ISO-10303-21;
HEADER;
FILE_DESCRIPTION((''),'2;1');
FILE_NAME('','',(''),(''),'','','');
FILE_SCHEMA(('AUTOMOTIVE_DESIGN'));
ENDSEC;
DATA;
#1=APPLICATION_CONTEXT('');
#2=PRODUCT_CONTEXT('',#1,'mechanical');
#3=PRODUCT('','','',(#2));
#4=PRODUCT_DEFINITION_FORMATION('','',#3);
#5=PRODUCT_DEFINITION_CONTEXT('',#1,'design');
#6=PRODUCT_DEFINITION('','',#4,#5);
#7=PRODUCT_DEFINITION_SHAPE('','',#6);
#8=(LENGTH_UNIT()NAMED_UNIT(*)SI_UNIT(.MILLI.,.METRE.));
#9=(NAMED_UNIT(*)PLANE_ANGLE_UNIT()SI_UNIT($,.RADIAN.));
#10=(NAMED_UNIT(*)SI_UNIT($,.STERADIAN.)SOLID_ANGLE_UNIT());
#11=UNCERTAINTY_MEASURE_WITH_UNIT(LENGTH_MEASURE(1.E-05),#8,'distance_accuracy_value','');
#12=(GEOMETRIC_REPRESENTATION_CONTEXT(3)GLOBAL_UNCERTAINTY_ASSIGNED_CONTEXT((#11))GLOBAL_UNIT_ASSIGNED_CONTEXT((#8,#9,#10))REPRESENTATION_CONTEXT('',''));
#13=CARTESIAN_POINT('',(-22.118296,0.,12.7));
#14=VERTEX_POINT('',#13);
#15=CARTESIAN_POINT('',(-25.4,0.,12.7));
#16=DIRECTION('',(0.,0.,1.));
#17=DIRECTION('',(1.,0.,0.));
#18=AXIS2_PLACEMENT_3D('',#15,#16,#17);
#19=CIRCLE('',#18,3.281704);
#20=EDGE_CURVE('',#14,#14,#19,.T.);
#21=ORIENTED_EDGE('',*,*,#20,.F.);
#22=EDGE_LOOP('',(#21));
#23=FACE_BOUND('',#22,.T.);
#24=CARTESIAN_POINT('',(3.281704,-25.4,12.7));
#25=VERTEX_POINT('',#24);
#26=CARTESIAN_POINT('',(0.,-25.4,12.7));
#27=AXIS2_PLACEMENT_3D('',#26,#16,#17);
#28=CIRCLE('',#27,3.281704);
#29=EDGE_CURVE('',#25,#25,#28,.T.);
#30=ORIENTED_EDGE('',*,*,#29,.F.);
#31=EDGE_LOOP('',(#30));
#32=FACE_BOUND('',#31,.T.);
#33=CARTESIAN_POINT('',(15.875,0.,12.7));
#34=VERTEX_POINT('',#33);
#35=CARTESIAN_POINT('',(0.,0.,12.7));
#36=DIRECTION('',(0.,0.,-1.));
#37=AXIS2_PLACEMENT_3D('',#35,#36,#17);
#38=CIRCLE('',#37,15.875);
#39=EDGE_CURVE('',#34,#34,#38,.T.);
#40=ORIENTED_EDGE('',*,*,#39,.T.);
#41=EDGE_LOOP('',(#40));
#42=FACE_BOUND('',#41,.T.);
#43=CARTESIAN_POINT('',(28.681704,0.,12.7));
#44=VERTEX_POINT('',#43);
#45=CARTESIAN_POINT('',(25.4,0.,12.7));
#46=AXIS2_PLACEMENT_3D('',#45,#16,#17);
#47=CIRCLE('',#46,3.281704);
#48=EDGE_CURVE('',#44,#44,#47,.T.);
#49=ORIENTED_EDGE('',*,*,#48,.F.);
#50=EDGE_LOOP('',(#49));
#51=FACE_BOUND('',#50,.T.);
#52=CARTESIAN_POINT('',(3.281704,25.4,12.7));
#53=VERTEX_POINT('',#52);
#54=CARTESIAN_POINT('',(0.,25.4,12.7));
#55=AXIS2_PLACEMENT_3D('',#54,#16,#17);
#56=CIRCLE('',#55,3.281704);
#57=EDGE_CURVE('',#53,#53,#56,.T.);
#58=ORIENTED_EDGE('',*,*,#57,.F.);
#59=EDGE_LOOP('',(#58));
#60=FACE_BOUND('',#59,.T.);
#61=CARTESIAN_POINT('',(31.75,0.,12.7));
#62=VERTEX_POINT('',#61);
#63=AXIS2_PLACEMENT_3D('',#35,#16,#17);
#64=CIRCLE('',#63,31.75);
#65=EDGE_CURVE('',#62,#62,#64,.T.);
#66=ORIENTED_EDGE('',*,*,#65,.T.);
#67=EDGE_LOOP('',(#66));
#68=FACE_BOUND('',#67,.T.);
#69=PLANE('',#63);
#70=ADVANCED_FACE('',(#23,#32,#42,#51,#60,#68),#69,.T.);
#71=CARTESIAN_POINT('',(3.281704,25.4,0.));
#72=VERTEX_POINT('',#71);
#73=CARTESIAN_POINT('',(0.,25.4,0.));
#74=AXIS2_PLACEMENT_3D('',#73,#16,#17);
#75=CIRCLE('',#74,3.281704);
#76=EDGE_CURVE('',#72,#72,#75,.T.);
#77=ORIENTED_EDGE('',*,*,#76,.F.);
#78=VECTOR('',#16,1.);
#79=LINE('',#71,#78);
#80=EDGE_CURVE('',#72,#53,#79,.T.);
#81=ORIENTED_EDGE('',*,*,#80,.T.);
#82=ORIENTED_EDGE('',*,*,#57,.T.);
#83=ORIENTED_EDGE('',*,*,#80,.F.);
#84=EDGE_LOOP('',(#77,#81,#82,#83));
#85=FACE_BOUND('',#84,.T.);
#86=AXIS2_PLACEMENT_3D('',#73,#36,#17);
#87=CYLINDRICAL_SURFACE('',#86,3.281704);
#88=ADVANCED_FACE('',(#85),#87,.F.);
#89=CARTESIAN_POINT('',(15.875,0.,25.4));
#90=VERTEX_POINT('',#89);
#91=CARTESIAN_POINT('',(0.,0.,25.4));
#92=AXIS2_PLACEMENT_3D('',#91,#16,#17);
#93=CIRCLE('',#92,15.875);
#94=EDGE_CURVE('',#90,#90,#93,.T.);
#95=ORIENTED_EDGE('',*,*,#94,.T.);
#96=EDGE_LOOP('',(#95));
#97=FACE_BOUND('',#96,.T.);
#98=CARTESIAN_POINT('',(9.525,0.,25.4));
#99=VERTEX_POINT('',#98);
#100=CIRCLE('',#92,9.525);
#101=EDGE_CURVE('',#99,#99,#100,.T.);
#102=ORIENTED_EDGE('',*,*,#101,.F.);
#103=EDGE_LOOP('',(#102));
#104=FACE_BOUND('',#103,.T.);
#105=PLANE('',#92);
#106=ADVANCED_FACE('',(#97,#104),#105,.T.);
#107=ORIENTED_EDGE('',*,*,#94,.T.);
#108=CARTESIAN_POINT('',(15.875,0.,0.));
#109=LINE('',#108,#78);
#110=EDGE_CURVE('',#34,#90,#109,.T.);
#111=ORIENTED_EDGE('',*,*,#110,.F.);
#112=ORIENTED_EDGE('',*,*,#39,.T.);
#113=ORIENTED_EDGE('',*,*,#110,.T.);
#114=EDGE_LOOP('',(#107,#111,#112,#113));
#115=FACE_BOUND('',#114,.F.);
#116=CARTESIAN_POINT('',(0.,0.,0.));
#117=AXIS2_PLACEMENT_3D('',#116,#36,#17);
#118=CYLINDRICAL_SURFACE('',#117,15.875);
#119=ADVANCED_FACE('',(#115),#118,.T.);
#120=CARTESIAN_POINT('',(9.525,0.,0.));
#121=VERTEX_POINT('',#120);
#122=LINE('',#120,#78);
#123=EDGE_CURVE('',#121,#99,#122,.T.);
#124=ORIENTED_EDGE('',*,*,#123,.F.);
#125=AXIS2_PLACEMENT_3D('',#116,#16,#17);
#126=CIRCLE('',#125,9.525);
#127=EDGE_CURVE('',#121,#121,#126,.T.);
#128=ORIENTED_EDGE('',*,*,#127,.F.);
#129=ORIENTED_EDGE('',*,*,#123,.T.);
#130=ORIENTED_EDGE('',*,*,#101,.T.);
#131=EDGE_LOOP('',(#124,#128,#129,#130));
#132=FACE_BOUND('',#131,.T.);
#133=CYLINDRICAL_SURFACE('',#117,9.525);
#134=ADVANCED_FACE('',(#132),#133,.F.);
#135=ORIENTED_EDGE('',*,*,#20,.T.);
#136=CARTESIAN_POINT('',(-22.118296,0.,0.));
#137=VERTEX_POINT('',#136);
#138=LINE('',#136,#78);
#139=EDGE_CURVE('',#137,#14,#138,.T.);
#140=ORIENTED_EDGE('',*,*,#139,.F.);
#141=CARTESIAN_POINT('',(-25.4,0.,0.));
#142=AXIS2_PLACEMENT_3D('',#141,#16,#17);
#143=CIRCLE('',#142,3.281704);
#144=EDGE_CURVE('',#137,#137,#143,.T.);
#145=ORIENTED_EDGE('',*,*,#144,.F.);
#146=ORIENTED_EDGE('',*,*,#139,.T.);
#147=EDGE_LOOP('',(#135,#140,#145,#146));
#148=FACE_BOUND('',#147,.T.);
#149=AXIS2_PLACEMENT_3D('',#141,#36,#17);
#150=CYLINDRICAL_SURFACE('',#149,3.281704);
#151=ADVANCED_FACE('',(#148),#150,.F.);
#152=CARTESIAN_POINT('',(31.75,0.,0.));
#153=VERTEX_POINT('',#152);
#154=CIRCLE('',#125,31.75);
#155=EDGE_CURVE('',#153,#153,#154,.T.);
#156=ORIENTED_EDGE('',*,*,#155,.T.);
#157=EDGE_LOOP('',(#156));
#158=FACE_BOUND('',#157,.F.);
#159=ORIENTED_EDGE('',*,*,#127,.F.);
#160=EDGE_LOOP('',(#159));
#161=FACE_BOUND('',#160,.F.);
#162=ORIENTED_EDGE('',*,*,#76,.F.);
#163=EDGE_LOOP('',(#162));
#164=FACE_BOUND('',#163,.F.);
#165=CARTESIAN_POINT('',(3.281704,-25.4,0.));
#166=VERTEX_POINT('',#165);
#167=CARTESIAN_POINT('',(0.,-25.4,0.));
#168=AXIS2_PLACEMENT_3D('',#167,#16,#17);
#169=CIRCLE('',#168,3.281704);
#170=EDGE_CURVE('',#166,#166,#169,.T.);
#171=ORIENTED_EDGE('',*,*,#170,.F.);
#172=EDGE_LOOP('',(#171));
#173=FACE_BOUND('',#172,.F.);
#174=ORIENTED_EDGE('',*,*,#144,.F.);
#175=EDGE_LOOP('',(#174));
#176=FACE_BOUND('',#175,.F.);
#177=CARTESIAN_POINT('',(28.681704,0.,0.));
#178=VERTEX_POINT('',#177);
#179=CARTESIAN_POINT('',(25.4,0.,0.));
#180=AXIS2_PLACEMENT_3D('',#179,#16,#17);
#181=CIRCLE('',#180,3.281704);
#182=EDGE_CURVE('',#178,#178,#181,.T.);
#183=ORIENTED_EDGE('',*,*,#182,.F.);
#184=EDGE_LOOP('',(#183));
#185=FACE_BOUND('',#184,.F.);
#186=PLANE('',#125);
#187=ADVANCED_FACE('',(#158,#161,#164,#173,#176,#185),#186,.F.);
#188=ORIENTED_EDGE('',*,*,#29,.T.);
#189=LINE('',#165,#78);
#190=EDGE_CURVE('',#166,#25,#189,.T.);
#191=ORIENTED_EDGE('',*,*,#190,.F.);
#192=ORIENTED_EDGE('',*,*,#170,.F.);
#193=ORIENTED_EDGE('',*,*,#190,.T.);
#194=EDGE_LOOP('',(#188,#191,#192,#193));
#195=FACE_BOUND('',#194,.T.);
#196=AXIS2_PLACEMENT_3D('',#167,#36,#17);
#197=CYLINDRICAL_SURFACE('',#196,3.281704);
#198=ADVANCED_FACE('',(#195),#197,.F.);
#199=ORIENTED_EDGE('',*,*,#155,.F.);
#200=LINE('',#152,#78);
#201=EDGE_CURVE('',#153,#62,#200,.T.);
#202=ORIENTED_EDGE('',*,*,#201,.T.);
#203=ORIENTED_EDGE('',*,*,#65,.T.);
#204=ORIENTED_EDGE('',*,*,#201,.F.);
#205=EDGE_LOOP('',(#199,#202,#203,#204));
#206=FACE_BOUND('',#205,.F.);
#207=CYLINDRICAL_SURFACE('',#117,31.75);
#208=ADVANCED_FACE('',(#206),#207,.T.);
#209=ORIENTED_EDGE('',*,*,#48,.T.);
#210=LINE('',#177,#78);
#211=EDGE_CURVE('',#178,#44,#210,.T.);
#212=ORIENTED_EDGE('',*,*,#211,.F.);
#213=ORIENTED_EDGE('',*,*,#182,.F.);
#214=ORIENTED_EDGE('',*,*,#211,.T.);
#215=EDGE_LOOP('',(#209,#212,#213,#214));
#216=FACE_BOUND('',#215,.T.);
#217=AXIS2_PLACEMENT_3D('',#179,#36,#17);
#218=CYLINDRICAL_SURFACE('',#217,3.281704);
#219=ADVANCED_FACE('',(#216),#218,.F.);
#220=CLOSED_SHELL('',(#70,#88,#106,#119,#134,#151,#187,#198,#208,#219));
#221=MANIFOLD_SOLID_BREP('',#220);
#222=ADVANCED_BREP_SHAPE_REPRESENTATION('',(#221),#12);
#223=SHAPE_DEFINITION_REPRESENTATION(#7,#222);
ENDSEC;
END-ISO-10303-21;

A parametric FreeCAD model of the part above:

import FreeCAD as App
import Part
import Sketcher
from FreeCAD import Vector
Q = App.Units.Quantity

doc = App.newDocument("Part")
body = doc.addObject("PartDesign::Body", "Body")

# Sketch on XY plane
sketch1 = body.newObject("Sketcher::SketchObject", "Sketch")
sketch1.AttachmentSupport = (doc.getObject("XY_Plane"), [""])
sketch1.MapMode = "FlatFace"
sketch1.addGeometry(Part.Circle(Vector(0, 0, 0), Vector(0, 0, 1), 31.75), False)
sketch1.addGeometry(Part.Circle(Vector(0, -25.4, 0), Vector(0, 0, 1), 3.281704), False)
sketch1.addGeometry(Part.Circle(Vector(-25.4, 0, 0), Vector(0, 0, 1), 3.281704), False)
sketch1.addGeometry(Part.Circle(Vector(0, 0, 0), Vector(0, 0, 1), 9.525), False)
sketch1.addGeometry(Part.Circle(Vector(25.4, 0, 0), Vector(0, 0, 1), 3.281704), False)
sketch1.addGeometry(Part.Circle(Vector(0, 25.4, 0), Vector(0, 0, 1), 3.281704), False)
sketch1.addConstraint(Sketcher.Constraint("Coincident", 0, 3, -1, 1))
sketch1.addConstraint(Sketcher.Constraint("Coincident", 3, 3, -1, 1))
sketch1.addConstraint(Sketcher.Constraint("Equal", 1, 2))
sketch1.addConstraint(Sketcher.Constraint("Equal", 2, 4))
sketch1.addConstraint(Sketcher.Constraint("Equal", 4, 5))
sketch1.addConstraint(Sketcher.Constraint("Symmetric", 2, 3, 4, 3, -1, 1))
sketch1.addConstraint(Sketcher.Constraint("Symmetric", 1, 3, 5, 3, -1, 1))
sketch1.addConstraint(Sketcher.Constraint("PointOnObject", 1, 3, -2))
sketch1.addConstraint(Sketcher.Constraint("PointOnObject", 2, 3, -1))
sketch1.addConstraint(Sketcher.Constraint("Diameter", 0, Q("2.5 in")))
sketch1.addConstraint(Sketcher.Constraint("Diameter", 3, Q("0.75 in")))
sketch1.addConstraint(Sketcher.Constraint("DistanceY", 1, 3, -1, 1, Q("1 in")))
sketch1.addConstraint(Sketcher.Constraint("DistanceX", 2, 3, -1, 1, Q("1 in")))
sketch1.addConstraint(Sketcher.Constraint("Diameter", 1, Q("6.563408 mm")))
pad1 = body.newObject("PartDesign::Pad", "Pad")
pad1.Profile = sketch1
pad1.Length = Q("0.5 in")

# Sketch on XY plane
sketch2 = body.newObject("Sketcher::SketchObject", "Sketch001")
sketch2.AttachmentSupport = (doc.getObject("XY_Plane"), [""])
sketch2.MapMode = "FlatFace"
sketch2.addGeometry(Part.Circle(Vector(0, 0, 0), Vector(0, 0, 1), 15.875), False)
sketch2.addGeometry(Part.Circle(Vector(0, 0, 0), Vector(0, 0, 1), 9.525), False)
sketch2.addConstraint(Sketcher.Constraint("Coincident", 0, 3, -1, 1))
sketch2.addConstraint(Sketcher.Constraint("Coincident", 1, 3, -1, 1))
sketch2.addConstraint(Sketcher.Constraint("Diameter", 0, Q("1.25 in")))
sketch2.addConstraint(Sketcher.Constraint("Diameter", 1, Q("0.75 in")))
pad2 = body.newObject("PartDesign::Pad", "Pad001")
pad2.Profile = sketch2
pad2.Length = Q("1 in")

doc.recompute()
